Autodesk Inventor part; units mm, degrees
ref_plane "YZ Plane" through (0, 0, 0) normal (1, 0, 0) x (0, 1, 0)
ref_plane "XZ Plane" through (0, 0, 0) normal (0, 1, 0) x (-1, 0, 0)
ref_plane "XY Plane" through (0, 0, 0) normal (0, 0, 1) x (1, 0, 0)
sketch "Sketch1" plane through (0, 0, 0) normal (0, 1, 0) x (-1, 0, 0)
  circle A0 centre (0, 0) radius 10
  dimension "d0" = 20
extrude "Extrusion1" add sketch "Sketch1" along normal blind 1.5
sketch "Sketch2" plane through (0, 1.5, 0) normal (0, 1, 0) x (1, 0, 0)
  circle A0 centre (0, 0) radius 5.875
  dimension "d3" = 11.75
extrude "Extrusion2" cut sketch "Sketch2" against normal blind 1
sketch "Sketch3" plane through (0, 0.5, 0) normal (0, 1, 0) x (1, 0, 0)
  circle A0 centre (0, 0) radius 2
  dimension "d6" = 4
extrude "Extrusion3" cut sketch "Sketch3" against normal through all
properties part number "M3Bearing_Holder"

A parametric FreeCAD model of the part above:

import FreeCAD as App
import Part
import Sketcher
from FreeCAD import Vector

doc = App.newDocument("Part")
params = doc.addObject("Spreadsheet::Sheet", "Params")
for row, (alias, value) in enumerate([
    ("sketch1_diameter", "20 mm"),
    ("pad1_length", "1.5 mm"),
    ("sketch2_diameter", "11.75 mm"),
    ("pocket1_length", "1 mm"),
    ("sketch3_diameter", "4 mm"),
], start=1):
    params.set(f"A{row}", alias)
    params.set(f"B{row}", "=" + value)
    params.setAlias(f"B{row}", alias)

body = doc.addObject("PartDesign::Body", "Body")

# Sketch on XZ plane
sketch1 = body.newObject("Sketcher::SketchObject", "Sketch")
sketch1.AttachmentSupport = (doc.getObject("XZ_Plane"), [""])
sketch1.MapMode = "FlatFace"
sketch1.addGeometry(Part.Circle(Vector(0, 0, 0), Vector(0, 0, 1), 10), False)
sketch1.addConstraint([
    Sketcher.Constraint("Coincident", 0, 3, -1, 1),
    Sketcher.Constraint("Diameter", 0, 20.0),
])
sketch1.setExpression("Constraints[1]", "Params.sketch1_diameter")
pad1 = body.newObject("PartDesign::Pad", "Pad")
pad1.Profile = sketch1
pad1.setExpression("Length", "Params.pad1_length")
pad1.Reversed = True

# Sketch on XZ plane
sketch2 = body.newObject("Sketcher::SketchObject", "Sketch001")
sketch2.AttachmentSupport = (doc.getObject("XZ_Plane"), [""])
sketch2.MapMode = "FlatFace"
sketch2.AttachmentOffset = App.Placement(Vector(0, 0, -1.5), App.Rotation())
sketch2.addGeometry(Part.Circle(Vector(0, 0, 0), Vector(0, 0, 1), 6), False)
sketch2.addConstraint([
    Sketcher.Constraint("Coincident", 0, 3, -1, 1),
    Sketcher.Constraint("Diameter", 0, 11.75),
])
sketch2.setExpression("Constraints[1]", "Params.sketch2_diameter")
pocket1 = body.newObject("PartDesign::Pocket", "Pocket")
pocket1.Profile = sketch2
pocket1.setExpression("Length", "Params.pocket1_length")
pocket1.Reversed = True

# Sketch on XZ plane
sketch3 = body.newObject("Sketcher::SketchObject", "Sketch002")
sketch3.AttachmentSupport = (doc.getObject("XZ_Plane"), [""])
sketch3.MapMode = "FlatFace"
sketch3.AttachmentOffset = App.Placement(Vector(0, 0, -0.5), App.Rotation())
sketch3.addGeometry(Part.Circle(Vector(0, 0, 0), Vector(0, 0, 1), 2), False)
sketch3.addConstraint([
    Sketcher.Constraint("Coincident", 0, 3, -1, 1),
    Sketcher.Constraint("Diameter", 0, 4.0),
])
sketch3.setExpression("Constraints[1]", "Params.sketch3_diameter")
pocket2 = body.newObject("PartDesign::Pocket", "Pocket001")
pocket2.Profile = sketch3
pocket2.Type = "ThroughAll"
pocket2.Reversed = True

doc.recompute()
